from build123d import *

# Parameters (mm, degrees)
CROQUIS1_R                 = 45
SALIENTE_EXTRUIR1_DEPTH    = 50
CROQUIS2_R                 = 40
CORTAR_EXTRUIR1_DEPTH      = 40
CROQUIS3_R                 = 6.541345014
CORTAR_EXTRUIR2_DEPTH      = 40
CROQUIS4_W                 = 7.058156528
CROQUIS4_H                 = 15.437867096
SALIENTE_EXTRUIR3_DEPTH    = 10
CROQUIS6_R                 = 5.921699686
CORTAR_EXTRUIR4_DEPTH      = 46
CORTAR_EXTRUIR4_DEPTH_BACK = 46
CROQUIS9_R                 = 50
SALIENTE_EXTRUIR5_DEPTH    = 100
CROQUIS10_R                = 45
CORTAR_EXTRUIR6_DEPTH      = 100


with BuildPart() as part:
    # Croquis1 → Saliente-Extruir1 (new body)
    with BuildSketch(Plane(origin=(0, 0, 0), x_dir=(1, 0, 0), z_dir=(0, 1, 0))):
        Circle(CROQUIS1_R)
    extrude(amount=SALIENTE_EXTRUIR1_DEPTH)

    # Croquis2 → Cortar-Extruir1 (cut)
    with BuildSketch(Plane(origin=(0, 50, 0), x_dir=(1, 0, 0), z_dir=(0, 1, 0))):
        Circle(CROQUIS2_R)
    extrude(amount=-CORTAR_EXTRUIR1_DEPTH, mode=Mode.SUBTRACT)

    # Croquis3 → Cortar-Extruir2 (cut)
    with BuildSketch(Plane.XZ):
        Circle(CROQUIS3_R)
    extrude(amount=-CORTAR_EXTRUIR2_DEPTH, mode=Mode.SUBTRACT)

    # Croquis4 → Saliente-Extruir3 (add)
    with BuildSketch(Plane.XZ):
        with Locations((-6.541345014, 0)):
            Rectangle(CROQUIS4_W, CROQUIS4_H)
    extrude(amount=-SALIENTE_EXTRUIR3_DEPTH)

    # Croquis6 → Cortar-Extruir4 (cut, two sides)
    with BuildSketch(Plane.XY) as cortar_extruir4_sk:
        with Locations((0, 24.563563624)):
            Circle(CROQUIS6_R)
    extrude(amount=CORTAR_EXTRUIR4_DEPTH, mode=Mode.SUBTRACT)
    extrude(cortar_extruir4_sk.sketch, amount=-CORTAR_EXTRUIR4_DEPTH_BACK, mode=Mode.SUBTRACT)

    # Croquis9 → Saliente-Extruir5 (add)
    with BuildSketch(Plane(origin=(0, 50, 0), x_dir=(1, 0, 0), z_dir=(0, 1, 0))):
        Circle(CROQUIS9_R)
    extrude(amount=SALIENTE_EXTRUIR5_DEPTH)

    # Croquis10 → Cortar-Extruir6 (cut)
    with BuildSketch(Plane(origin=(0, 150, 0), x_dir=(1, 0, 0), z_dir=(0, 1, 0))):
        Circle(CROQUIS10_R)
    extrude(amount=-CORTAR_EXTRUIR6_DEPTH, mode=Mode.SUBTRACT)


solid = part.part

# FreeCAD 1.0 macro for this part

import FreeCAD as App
import Part
import Sketcher

V = App.Vector


def add_polygon(sketch, points):
    """Adds a closed chain of lines whose ends are joined by coincident constraints."""
    first, n = sketch.GeometryCount, len(points)
    for a, b in zip(points, points[1:] + points[:1]):
        sketch.addGeometry(Part.LineSegment(App.Vector(*a, 0), App.Vector(*b, 0)), False)
    for i in range(n):
        sketch.addConstraint(Sketcher.Constraint("Coincident", first + i, 2, first + (i + 1) % n, 1))

doc = App.newDocument("Part")
body = doc.addObject("PartDesign::Body", "Body")
body.AllowCompound = True

# Sketch on XZ plane
sketch1 = doc.addObject("Sketcher::SketchObject", "Sketch")
body.addObject(sketch1)
sketch1.AttachmentSupport = (doc.XZ_Plane, [""])
sketch1.MapMode = "FlatFace"
sketch1.addGeometry(Part.Circle(V(0, 0, 0), V(0, 0, 1), 45), False)
sketch1.addConstraint(Sketcher.Constraint("Coincident", 0, 3, -1, 1))
sketch1.addConstraint(Sketcher.Constraint("Diameter", 0, 90.0))
pad1 = doc.addObject("PartDesign::Pad", "Pad")
body.addObject(pad1)
pad1.Profile = sketch1
pad1.Length = 50
pad1.Reversed = True

# Sketch on XZ plane
sketch2 = doc.addObject("Sketcher::SketchObject", "Sketch001")
body.addObject(sketch2)
sketch2.AttachmentSupport = (doc.XZ_Plane, [""])
sketch2.MapMode = "FlatFace"
sketch2.AttachmentOffset = App.Placement(V(0, 0, -50), App.Rotation())
sketch2.addGeometry(Part.Circle(V(0, 0, 0), V(0, 0, 1), 40), False)
sketch2.addConstraint(Sketcher.Constraint("Coincident", 0, 3, -1, 1))
sketch2.addConstraint(Sketcher.Constraint("Diameter", 0, 80.0))
pocket1 = doc.addObject("PartDesign::Pocket", "Pocket")
body.addObject(pocket1)
pocket1.Profile = sketch2
pocket1.Length = 40
pocket1.Reversed = True

# Sketch on XZ plane
sketch3 = doc.addObject("Sketcher::SketchObject", "Sketch002")
body.addObject(sketch3)
sketch3.AttachmentSupport = (doc.XZ_Plane, [""])
sketch3.MapMode = "FlatFace"
sketch3.addGeometry(Part.Circle(V(0, 0, 0), V(0, 0, 1), 7), False)
sketch3.addConstraint(Sketcher.Constraint("Coincident", 0, 3, -1, 1))
sketch3.addConstraint(Sketcher.Constraint("Diameter", 0, 13.08269))
pocket2 = doc.addObject("PartDesign::Pocket", "Pocket001")
body.addObject(pocket2)
pocket2.Profile = sketch3
pocket2.Length = 40

# Sketch on XZ plane
sketch4 = doc.addObject("Sketcher::SketchObject", "Sketch003")
body.addObject(sketch4)
sketch4.AttachmentSupport = (doc.XZ_Plane, [""])
sketch4.MapMode = "FlatFace"
add_polygon(sketch4, [(-10, 8), (-10, -8), (-3, -8), (-3, 8)])  # lines 0-3
sketch4.addConstraint(Sketcher.Constraint("Vertical", 0))
sketch4.addConstraint(Sketcher.Constraint("Horizontal", 1))
sketch4.addConstraint(Sketcher.Constraint("Vertical", 2))
sketch4.addConstraint(Sketcher.Constraint("Horizontal", 3))
sketch4.addConstraint(Sketcher.Constraint("DistanceX", 1, 1, 1, 2, 7.058157))
sketch4.addConstraint(Sketcher.Constraint("DistanceY", 0, 2, 0, 1, 15.437867))
sketch4.addConstraint(Sketcher.Constraint("DistanceX", 0, 2, -1, 1, 10.070423))
sketch4.addConstraint(Sketcher.Constraint("DistanceY", 0, 2, -1, 1, 7.718934))
pad2 = doc.addObject("PartDesign::Pad", "Pad001")
body.addObject(pad2)
pad2.Profile = sketch4
pad2.Length = 10
pad2.Reversed = True

# Sketch on XY plane
sketch5 = doc.addObject("Sketcher::SketchObject", "Sketch004")
body.addObject(sketch5)
sketch5.AttachmentSupport = (doc.XY_Plane, [""])
sketch5.MapMode = "FlatFace"
sketch5.addGeometry(Part.Circle(V(0, 25, 0), V(0, 0, 1), 6), False)
sketch5.addConstraint(Sketcher.Constraint("PointOnObject", 0, 3, -2))
sketch5.addConstraint(Sketcher.Constraint("Diameter", 0, 11.843399))
sketch5.addConstraint(Sketcher.Constraint("DistanceY", -1, 1, 0, 3, 24.563564))
pocket3 = doc.addObject("PartDesign::Pocket", "Pocket002")
body.addObject(pocket3)
pocket3.Profile = sketch5
pocket3.Type = "ThroughAll"
pocket3.Midplane = True

# Sketch on XZ plane
sketch6 = doc.addObject("Sketcher::SketchObject", "Sketch005")
body.addObject(sketch6)
sketch6.AttachmentSupport = (doc.XZ_Plane, [""])
sketch6.MapMode = "FlatFace"
sketch6.AttachmentOffset = App.Placement(V(0, 0, -50), App.Rotation())
sketch6.addGeometry(Part.Circle(V(0, 0, 0), V(0, 0, 1), 50), False)
sketch6.addConstraint(Sketcher.Constraint("Coincident", 0, 3, -1, 1))
sketch6.addConstraint(Sketcher.Constraint("Diameter", 0, 100.0))
pad3 = doc.addObject("PartDesign::Pad", "Pad002")
body.addObject(pad3)
pad3.Profile = sketch6
pad3.Length = 100
pad3.Reversed = True

# Sketch on XZ plane
sketch7 = doc.addObject("Sketcher::SketchObject", "Sketch006")
body.addObject(sketch7)
sketch7.AttachmentSupport = (doc.XZ_Plane, [""])
sketch7.MapMode = "FlatFace"
sketch7.AttachmentOffset = App.Placement(V(0, 0, -150), App.Rotation())
sketch7.addGeometry(Part.Circle(V(0, 0, 0), V(0, 0, 1), 45), False)
sketch7.addConstraint(Sketcher.Constraint("Coincident", 0, 3, -1, 1))
sketch7.addConstraint(Sketcher.Constraint("Diameter", 0, 90.0))
pocket4 = doc.addObject("PartDesign::Pocket", "Pocket003")
body.addObject(pocket4)
pocket4.Profile = sketch7
pocket4.Length = 100
pocket4.Reversed = True

doc.recompute()
